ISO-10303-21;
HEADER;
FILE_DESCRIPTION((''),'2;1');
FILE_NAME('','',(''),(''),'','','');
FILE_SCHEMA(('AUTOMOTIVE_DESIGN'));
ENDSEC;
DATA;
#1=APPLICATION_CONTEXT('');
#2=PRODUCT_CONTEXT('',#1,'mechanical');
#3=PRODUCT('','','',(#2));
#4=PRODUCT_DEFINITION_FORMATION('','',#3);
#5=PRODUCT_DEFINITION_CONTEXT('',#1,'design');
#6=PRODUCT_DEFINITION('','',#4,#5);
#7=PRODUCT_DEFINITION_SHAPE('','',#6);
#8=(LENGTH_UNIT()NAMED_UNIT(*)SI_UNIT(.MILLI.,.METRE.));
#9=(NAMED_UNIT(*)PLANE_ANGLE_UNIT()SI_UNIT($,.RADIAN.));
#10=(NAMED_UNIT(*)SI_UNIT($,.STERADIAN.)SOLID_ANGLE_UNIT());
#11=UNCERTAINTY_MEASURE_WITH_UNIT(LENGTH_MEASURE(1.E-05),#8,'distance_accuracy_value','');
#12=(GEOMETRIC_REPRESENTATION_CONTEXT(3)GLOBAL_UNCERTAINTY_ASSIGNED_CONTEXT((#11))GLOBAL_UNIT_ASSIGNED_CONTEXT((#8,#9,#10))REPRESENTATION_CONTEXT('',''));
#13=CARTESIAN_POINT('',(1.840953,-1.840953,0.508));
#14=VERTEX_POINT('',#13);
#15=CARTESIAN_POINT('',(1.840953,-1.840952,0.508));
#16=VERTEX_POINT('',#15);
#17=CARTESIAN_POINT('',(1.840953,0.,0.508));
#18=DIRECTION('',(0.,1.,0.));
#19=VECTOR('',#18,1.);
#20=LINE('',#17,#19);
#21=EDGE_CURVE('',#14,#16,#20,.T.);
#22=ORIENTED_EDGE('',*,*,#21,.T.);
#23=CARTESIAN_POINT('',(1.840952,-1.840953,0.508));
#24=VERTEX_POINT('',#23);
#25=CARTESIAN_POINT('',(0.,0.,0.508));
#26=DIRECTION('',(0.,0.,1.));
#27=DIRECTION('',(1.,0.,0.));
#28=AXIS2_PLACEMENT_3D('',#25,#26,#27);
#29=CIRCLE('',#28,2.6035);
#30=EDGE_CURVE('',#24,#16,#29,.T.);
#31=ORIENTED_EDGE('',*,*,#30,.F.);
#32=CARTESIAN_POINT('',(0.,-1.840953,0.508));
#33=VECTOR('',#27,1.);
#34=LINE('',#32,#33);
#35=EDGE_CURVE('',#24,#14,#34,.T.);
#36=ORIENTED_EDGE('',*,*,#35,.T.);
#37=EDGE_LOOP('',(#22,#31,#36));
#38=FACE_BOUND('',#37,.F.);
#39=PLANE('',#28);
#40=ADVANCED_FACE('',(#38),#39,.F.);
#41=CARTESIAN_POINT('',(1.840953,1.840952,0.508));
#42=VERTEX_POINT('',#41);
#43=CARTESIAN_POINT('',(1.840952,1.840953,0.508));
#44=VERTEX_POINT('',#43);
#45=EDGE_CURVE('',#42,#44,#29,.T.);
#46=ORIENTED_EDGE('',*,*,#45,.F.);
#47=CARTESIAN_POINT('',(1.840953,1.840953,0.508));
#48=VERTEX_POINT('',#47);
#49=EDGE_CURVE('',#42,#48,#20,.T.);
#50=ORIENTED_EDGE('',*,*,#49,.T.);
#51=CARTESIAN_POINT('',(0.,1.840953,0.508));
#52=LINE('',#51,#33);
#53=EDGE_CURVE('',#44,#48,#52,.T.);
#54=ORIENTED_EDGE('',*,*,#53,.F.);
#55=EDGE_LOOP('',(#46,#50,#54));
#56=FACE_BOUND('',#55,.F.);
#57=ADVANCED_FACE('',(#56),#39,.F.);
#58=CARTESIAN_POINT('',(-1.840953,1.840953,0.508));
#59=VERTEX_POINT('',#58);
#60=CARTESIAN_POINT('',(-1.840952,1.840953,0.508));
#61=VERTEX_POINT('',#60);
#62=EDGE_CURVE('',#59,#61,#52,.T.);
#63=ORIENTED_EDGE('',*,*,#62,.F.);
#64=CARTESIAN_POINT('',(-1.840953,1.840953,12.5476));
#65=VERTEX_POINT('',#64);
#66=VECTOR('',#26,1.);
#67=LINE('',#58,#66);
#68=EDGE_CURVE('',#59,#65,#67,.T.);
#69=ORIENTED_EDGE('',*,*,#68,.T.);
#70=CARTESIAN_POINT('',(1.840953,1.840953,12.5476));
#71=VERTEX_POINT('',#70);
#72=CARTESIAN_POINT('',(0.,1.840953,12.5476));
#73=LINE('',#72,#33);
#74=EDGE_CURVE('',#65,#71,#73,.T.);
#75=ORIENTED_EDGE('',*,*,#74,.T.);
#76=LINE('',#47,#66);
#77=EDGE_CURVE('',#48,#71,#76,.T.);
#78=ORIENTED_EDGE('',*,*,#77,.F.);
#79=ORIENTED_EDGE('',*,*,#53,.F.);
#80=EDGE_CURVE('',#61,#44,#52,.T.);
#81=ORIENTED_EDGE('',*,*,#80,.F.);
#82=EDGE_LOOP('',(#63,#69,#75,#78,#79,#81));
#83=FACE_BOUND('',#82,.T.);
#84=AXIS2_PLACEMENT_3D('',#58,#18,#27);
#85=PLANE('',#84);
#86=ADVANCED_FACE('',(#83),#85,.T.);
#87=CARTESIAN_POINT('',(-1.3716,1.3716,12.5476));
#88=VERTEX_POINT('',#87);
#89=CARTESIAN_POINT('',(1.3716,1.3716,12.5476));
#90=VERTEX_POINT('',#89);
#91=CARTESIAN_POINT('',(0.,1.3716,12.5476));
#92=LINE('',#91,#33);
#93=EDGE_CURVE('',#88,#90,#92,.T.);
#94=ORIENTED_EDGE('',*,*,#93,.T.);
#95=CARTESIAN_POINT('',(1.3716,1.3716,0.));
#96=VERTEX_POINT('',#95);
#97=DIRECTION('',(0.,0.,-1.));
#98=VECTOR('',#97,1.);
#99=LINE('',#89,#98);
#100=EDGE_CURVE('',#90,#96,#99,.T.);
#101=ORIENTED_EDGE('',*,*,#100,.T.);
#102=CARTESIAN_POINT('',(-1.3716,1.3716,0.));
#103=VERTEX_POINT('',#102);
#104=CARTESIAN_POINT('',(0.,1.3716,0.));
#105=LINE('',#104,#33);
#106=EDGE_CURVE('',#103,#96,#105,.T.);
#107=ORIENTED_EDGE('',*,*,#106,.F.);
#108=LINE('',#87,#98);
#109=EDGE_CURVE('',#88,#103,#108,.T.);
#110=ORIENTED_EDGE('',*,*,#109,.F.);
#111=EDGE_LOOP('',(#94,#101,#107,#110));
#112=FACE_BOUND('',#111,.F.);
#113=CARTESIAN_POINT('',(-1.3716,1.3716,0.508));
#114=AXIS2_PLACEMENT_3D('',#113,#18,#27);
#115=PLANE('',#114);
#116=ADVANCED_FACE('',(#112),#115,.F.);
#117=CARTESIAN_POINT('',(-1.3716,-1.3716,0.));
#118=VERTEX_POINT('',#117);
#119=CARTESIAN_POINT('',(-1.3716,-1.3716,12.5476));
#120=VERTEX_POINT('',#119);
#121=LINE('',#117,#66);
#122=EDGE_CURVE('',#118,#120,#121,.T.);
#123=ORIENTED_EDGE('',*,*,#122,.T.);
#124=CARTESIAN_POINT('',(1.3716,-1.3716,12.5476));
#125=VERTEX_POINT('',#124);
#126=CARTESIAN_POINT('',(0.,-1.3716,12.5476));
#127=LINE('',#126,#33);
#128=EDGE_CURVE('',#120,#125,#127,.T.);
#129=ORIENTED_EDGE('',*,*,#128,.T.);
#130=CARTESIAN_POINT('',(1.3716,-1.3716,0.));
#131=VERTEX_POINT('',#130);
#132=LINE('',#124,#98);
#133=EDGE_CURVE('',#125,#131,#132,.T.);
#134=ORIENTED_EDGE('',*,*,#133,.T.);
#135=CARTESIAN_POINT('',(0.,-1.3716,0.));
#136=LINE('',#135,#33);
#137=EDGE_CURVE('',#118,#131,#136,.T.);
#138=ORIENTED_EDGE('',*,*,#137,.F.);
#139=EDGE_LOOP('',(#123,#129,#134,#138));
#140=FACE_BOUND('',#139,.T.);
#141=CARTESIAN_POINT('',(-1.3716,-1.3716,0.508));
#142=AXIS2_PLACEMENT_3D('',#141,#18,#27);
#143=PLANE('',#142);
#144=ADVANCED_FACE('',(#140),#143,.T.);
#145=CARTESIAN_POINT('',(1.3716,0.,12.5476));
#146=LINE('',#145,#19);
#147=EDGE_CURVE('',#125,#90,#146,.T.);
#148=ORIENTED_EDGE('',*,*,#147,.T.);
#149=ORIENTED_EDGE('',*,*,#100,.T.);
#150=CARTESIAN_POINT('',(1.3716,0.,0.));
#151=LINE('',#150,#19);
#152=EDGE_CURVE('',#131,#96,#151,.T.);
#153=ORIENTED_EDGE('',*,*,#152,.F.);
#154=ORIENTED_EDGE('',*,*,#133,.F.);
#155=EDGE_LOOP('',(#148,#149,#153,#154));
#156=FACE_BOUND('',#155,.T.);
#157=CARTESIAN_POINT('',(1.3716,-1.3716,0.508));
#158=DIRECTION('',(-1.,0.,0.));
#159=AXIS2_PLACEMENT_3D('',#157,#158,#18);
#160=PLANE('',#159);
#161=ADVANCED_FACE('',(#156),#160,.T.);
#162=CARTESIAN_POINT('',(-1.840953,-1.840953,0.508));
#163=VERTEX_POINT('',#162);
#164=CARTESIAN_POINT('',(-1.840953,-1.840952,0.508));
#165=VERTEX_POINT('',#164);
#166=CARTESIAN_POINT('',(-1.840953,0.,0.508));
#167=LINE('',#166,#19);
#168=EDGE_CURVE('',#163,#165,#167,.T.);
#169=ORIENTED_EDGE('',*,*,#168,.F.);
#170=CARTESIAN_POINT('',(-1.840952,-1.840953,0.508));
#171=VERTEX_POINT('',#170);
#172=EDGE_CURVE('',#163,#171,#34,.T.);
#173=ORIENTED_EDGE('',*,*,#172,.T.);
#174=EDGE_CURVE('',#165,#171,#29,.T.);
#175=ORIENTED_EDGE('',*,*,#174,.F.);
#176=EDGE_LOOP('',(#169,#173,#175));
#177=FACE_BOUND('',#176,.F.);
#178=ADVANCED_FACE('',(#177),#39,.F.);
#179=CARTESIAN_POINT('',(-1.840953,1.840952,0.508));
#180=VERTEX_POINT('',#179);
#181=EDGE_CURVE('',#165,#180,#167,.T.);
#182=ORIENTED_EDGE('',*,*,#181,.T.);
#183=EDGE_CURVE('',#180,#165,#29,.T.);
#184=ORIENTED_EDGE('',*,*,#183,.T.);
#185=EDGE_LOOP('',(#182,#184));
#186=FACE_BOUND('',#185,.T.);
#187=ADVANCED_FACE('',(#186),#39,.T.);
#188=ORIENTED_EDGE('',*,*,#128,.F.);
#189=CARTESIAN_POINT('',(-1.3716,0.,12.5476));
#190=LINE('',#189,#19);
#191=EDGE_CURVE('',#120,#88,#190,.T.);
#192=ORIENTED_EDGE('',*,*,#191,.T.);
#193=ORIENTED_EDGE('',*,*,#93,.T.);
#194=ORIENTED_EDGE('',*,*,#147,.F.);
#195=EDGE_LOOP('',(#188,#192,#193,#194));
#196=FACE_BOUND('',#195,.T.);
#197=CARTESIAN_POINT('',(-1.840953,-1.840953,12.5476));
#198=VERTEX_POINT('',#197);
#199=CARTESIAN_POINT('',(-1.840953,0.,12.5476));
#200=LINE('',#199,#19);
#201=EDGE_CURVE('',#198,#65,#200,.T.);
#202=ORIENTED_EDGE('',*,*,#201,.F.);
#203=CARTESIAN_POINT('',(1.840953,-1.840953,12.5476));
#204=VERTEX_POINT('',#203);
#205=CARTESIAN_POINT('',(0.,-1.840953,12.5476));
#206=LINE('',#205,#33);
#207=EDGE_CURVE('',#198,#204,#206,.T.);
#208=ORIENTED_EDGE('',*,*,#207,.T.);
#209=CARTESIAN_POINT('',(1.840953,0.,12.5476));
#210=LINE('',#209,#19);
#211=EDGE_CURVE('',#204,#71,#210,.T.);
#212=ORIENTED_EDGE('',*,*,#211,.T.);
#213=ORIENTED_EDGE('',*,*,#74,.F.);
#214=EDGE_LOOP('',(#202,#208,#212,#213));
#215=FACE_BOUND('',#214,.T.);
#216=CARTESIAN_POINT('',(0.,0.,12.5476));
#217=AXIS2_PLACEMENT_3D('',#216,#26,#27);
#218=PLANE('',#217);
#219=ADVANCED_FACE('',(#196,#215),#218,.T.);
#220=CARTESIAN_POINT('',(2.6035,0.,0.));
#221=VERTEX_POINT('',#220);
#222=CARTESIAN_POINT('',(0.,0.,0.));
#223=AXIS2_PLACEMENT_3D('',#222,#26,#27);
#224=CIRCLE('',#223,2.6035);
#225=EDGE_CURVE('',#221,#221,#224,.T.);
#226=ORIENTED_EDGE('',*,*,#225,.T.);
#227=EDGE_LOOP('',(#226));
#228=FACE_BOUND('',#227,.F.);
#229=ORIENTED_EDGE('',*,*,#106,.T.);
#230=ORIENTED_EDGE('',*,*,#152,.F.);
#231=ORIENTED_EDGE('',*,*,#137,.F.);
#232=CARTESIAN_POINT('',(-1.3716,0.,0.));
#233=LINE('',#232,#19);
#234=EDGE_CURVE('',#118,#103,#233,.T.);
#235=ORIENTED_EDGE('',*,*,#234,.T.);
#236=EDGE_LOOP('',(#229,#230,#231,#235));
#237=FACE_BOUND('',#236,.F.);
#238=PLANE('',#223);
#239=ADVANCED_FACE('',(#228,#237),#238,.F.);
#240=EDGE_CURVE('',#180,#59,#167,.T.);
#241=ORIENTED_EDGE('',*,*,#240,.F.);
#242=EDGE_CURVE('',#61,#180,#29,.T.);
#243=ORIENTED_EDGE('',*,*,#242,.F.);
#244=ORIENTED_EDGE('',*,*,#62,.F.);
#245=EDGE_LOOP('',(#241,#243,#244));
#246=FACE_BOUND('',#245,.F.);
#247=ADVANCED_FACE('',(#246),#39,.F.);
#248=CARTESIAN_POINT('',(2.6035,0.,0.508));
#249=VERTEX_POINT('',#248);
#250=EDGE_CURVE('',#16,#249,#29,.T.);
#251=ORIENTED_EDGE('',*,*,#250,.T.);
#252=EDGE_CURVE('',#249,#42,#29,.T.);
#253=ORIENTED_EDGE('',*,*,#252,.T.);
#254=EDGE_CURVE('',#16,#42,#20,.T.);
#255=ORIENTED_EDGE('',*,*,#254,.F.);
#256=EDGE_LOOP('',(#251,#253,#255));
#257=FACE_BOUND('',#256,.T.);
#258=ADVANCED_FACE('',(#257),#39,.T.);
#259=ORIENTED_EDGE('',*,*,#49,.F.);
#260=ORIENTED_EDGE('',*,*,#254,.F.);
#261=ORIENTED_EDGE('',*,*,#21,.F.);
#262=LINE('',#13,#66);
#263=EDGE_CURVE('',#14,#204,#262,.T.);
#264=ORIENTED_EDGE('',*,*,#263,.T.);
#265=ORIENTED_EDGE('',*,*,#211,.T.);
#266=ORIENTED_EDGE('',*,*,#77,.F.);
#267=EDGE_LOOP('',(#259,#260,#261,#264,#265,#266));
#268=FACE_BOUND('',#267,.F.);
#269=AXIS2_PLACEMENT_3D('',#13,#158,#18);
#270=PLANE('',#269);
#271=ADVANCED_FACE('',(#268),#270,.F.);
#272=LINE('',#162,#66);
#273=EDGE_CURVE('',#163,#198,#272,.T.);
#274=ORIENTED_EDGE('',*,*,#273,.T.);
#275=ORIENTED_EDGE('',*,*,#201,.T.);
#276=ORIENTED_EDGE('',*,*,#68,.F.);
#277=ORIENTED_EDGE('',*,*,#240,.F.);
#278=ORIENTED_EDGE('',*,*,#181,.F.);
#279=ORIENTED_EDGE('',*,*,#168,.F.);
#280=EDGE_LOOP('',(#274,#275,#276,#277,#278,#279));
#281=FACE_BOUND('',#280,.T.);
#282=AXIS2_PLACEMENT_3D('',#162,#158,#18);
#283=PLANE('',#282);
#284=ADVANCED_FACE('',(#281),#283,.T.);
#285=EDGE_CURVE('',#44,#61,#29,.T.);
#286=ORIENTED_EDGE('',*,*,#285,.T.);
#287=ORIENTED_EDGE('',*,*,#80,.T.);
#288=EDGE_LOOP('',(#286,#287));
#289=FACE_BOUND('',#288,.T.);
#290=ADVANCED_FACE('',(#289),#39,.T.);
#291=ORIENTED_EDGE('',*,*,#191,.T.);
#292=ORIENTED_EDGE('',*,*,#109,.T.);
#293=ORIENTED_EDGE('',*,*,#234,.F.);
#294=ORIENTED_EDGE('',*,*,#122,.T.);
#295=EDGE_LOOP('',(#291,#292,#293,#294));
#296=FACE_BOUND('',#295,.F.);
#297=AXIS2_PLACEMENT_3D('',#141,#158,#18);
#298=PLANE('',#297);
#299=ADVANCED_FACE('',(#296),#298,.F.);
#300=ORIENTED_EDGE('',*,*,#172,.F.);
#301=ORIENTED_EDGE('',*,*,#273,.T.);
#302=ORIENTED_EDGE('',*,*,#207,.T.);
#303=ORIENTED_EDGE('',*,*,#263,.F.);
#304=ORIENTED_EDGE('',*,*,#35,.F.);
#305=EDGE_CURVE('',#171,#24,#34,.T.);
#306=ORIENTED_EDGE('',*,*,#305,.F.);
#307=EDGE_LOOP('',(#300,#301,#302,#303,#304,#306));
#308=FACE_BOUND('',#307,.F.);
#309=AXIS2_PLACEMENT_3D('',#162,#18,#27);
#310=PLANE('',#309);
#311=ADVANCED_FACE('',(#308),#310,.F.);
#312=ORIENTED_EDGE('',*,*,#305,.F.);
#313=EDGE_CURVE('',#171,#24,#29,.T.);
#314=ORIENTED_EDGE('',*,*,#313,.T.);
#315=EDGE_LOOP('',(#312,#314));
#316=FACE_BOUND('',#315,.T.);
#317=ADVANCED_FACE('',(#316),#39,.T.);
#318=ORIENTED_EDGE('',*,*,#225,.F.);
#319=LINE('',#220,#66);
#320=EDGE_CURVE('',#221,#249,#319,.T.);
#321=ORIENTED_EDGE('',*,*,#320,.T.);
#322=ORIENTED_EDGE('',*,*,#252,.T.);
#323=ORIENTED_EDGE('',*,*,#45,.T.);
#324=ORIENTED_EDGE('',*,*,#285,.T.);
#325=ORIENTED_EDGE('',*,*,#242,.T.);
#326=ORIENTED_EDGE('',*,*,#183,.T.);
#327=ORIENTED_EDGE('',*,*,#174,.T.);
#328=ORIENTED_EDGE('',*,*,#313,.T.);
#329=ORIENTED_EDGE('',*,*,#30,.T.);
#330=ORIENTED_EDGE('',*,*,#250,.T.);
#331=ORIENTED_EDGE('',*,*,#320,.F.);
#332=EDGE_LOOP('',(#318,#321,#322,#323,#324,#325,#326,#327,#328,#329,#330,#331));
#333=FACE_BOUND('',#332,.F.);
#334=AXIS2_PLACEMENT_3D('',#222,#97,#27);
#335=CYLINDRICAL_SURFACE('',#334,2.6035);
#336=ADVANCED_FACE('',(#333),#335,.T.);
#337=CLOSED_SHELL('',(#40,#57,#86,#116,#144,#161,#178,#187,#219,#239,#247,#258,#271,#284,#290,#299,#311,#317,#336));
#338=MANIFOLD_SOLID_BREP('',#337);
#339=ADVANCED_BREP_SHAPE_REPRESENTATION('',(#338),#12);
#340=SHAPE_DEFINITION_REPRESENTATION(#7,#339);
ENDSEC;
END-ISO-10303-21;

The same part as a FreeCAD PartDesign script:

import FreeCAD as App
import Part
import Sketcher
Q = App.Units.Quantity


def add_polygon(sketch, points):
    """Adds a closed chain of lines whose ends are joined by coincident constraints."""
    first, n = sketch.GeometryCount, len(points)
    for a, b in zip(points, points[1:] + points[:1]):
        sketch.addGeometry(Part.LineSegment(App.Vector(*a, 0), App.Vector(*b, 0)), False)
    for i in range(n):
        sketch.addConstraint(Sketcher.Constraint("Coincident", first + i, 2, first + (i + 1) % n, 1))

doc = App.newDocument("Part")
body = doc.addObject("PartDesign::Body", "Body")

# Sketch on XY plane
sketch1 = body.newObject("Sketcher::SketchObject", "Sketch")
sketch1.AttachmentSupport = (doc.getObject("XY_Plane"), [""])
sketch1.MapMode = "FlatFace"
sketch1.addGeometry(Part.Circle(App.Vector(0, 0, 0), App.Vector(0, 0, 1), 2.6), False)  # 0
add_polygon(sketch1, [(1.4, -1.4), (-1.4, -1.4), (-1.4, 1.4), (1.4, 1.4)])  # lines 1-4
sketch1.addConstraint([
    Sketcher.Constraint("Horizontal", 1),
    Sketcher.Constraint("Vertical", 2),
    Sketcher.Constraint("Horizontal", 3),
    Sketcher.Constraint("Vertical", 4),
    Sketcher.Constraint("Coincident", 0, 3, -1, 1),
    Sketcher.Constraint("Symmetric", 1, 2, 3, 2, -1, 1),
    Sketcher.Constraint("Equal", 3, 2),
    Sketcher.Constraint("Diameter", 0, Q("0.205 in")),
    Sketcher.Constraint("DistanceX", 1, 2, 1, 1, Q("0.108 in")),
])
pad1 = body.newObject("PartDesign::Pad", "Pad")
pad1.Profile = sketch1
pad1.Length = Q("0.02 in")

# Sketch on XY plane
sketch2 = body.newObject("Sketcher::SketchObject", "Sketch001")
sketch2.AttachmentSupport = (doc.getObject("XY_Plane"), [""])
sketch2.MapMode = "FlatFace"
sketch2.AttachmentOffset = App.Placement(App.Vector(0, 0, 0.02 * 25.4), App.Rotation())
add_polygon(sketch2, [(-1.8, 1.8), (-1.8, -1.8), (1.8, -1.8), (1.8, 1.8)])  # lines 0-3
add_polygon(sketch2, [(1.4, -1.4), (-1.4, -1.4), (-1.4, 1.4), (1.4, 1.4)])  # lines 4-7
sketch2.addConstraint([
    Sketcher.Constraint("Vertical", 0),
    Sketcher.Constraint("Horizontal", 1),
    Sketcher.Constraint("Vertical", 2),
    Sketcher.Constraint("Horizontal", 3),
    Sketcher.Constraint("Horizontal", 4),
    Sketcher.Constraint("Vertical", 5),
    Sketcher.Constraint("Horizontal", 6),
    Sketcher.Constraint("Vertical", 7),
    Sketcher.Constraint("Symmetric", 0, 2, 2, 2, -1, 1),
    Sketcher.Constraint("Symmetric", 4, 2, 6, 2, -1, 1),
    Sketcher.Constraint("Equal", 3, 0),
    Sketcher.Constraint("Equal", 6, 5),
    Sketcher.Constraint("DistanceX", 4, 2, 4, 1, Q("0.108 in")),
    Sketcher.Constraint("DistanceX", 1, 1, 1, 2, 3.681906),
])
pad2 = body.newObject("PartDesign::Pad", "Pad001")
pad2.Profile = sketch2
pad2.Length = Q("0.474 in")

doc.recompute()
